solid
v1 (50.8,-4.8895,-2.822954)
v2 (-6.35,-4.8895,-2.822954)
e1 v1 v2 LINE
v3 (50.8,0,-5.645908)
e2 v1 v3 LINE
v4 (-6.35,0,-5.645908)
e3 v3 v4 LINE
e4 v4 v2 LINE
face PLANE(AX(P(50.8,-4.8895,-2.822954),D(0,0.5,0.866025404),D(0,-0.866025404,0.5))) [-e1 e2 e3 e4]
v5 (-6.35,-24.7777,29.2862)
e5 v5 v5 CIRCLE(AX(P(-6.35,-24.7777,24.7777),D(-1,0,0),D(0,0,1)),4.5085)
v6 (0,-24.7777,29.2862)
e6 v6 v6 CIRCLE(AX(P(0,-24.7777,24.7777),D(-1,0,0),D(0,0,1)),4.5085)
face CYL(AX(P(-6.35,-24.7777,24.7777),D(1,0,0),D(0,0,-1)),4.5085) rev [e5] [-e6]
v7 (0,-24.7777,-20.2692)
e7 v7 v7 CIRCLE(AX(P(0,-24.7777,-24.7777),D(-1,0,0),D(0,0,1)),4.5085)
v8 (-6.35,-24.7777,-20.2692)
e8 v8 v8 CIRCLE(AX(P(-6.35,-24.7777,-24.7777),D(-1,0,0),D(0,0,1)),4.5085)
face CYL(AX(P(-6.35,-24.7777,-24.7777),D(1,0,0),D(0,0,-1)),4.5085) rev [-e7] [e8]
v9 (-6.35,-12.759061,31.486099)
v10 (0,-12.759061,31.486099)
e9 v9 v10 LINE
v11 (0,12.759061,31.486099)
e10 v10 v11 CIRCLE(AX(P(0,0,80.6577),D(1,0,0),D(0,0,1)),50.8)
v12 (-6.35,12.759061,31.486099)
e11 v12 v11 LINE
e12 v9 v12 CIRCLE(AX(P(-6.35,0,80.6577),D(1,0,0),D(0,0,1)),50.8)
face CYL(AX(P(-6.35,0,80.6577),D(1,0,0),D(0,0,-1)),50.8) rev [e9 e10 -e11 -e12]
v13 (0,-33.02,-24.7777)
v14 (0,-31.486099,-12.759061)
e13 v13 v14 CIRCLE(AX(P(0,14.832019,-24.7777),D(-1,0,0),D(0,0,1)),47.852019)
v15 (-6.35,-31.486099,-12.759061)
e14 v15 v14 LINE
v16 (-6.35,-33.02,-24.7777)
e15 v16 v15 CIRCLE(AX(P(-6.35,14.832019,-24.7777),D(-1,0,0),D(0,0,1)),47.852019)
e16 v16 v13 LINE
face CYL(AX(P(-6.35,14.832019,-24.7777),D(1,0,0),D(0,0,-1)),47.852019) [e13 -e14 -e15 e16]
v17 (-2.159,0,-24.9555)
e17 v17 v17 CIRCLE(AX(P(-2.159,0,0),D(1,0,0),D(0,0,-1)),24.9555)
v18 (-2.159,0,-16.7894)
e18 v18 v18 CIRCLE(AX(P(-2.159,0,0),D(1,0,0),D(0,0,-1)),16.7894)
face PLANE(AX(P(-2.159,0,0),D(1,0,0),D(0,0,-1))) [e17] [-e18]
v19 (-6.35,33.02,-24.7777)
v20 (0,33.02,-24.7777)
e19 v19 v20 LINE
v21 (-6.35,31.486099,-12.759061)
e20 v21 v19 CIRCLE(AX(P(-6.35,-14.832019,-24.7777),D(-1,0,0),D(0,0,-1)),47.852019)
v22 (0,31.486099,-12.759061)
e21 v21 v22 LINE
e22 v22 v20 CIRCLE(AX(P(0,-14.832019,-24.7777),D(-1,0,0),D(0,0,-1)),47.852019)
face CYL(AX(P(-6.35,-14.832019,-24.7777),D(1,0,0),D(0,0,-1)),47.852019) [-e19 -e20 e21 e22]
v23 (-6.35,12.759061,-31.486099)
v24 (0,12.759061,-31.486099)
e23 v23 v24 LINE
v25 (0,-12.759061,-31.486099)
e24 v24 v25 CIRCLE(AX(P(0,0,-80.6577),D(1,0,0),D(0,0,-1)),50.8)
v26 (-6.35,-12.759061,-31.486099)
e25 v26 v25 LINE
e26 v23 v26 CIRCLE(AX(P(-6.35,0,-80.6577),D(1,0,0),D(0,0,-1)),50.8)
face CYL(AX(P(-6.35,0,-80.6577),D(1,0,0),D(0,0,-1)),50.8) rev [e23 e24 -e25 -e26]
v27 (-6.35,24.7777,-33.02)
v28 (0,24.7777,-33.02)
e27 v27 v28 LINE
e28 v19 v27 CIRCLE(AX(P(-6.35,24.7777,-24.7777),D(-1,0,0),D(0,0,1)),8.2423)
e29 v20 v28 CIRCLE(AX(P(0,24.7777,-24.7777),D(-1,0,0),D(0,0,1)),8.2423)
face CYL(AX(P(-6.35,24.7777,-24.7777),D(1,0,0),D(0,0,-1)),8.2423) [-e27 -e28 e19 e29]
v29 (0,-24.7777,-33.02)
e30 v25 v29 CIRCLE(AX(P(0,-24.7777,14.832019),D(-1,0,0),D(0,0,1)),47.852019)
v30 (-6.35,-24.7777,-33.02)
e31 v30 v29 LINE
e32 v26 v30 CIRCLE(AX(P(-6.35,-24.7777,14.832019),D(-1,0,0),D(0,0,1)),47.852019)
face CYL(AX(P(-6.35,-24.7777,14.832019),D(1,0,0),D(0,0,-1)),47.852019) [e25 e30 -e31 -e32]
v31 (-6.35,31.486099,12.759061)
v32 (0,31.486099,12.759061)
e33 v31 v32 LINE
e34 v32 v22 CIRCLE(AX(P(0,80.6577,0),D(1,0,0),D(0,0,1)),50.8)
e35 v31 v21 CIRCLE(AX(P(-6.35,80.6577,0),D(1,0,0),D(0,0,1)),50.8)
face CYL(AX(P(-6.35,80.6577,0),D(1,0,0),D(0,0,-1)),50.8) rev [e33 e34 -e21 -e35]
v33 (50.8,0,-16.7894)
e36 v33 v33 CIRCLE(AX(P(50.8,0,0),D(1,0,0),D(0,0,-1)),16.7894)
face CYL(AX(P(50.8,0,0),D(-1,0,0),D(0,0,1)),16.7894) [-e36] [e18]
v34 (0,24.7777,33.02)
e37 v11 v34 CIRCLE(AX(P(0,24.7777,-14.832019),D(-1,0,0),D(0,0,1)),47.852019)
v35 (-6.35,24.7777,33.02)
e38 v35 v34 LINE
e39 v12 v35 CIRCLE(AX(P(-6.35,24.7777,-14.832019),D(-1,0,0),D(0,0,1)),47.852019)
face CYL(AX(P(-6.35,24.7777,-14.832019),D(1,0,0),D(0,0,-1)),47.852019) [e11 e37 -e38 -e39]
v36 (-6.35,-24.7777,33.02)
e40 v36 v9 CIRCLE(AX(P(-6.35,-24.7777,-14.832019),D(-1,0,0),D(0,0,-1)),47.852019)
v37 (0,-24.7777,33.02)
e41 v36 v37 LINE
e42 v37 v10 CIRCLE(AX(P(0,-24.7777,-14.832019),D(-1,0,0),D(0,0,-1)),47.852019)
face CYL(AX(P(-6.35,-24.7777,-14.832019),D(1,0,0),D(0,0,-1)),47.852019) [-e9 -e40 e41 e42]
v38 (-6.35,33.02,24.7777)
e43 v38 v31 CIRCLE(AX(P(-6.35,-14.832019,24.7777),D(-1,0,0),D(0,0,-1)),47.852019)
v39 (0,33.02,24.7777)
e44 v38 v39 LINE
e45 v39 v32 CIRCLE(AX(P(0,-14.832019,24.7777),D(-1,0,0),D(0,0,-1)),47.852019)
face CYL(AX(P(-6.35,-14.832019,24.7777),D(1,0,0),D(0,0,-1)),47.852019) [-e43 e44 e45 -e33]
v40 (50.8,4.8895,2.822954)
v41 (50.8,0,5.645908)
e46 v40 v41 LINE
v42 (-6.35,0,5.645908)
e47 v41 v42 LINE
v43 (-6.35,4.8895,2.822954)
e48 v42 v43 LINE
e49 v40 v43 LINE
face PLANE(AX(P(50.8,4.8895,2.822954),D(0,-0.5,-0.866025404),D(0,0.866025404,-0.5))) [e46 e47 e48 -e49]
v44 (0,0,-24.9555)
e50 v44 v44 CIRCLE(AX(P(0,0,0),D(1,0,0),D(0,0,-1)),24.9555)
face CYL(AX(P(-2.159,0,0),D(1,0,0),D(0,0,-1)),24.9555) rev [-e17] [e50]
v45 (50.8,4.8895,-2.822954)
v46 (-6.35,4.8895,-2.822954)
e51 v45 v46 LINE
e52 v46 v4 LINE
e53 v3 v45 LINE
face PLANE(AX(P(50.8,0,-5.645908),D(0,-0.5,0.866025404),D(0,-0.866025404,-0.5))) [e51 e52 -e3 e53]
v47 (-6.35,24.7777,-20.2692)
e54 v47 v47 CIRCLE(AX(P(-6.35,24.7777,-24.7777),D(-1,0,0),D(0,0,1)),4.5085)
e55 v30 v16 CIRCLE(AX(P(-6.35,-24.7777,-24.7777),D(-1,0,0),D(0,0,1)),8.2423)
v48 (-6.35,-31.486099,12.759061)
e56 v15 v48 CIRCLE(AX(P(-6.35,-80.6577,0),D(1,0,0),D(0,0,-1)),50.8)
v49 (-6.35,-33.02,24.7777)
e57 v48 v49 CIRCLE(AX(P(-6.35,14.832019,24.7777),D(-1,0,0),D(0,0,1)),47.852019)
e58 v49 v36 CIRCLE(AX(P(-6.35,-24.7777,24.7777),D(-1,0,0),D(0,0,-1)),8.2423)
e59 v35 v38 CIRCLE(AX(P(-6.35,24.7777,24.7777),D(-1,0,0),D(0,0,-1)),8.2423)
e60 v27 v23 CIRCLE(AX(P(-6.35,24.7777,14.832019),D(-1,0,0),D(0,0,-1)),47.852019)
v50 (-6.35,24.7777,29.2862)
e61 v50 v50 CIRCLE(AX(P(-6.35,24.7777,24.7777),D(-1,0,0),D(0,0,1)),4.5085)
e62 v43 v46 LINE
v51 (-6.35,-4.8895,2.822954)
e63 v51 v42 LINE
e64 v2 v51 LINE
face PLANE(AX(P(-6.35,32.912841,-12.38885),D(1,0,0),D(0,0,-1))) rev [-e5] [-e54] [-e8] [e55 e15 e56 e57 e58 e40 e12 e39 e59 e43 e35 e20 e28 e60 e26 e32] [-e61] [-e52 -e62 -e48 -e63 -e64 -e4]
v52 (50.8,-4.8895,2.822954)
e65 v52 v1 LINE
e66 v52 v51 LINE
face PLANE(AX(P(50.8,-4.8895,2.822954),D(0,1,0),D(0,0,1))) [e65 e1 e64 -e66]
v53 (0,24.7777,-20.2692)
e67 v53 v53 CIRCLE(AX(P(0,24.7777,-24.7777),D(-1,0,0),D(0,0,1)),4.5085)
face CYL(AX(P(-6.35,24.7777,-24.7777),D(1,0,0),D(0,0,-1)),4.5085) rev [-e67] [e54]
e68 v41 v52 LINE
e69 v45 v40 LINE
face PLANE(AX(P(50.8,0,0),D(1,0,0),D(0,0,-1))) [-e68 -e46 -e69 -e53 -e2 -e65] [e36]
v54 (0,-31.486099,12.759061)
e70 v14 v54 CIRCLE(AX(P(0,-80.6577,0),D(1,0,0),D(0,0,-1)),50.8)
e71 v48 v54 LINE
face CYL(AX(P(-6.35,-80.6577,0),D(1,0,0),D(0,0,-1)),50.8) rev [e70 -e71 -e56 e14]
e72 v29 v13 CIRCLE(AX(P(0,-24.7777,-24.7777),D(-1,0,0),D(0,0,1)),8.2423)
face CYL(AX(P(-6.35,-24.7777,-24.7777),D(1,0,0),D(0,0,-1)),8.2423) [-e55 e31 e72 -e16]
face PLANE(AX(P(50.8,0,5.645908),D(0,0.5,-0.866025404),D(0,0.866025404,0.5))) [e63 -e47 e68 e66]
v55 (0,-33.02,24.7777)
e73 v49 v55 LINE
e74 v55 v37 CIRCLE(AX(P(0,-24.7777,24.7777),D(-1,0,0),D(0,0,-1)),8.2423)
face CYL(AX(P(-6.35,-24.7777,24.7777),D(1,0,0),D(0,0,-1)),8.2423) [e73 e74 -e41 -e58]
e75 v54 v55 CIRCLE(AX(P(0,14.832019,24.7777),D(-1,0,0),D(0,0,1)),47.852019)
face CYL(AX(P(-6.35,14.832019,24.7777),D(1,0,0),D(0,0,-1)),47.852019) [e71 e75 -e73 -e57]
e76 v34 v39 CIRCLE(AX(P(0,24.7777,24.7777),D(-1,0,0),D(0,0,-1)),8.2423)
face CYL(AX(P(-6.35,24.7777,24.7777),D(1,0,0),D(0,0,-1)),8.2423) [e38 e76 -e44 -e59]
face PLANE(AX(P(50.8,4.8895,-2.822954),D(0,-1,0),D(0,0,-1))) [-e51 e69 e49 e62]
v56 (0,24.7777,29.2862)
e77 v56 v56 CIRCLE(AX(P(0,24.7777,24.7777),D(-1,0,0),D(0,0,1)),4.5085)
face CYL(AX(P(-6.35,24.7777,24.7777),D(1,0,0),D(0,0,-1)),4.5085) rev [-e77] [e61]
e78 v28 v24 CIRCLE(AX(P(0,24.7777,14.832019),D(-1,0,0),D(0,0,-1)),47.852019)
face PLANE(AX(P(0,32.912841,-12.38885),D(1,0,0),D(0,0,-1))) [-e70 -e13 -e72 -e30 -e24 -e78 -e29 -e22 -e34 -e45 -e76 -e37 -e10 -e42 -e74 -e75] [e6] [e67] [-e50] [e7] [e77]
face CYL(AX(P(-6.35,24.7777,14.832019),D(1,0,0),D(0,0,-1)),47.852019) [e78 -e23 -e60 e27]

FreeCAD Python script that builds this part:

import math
import FreeCAD as App
import Part
import Sketcher
Q = App.Units.Quantity


def add_polygon(sketch, points):
    """Adds a closed chain of lines whose ends are joined by coincident constraints."""
    first, n = sketch.GeometryCount, len(points)
    for a, b in zip(points, points[1:] + points[:1]):
        sketch.addGeometry(Part.LineSegment(App.Vector(*a, 0), App.Vector(*b, 0)), False)
    for i in range(n):
        sketch.addConstraint(Sketcher.Constraint("Coincident", first + i, 2, first + (i + 1) % n, 1))

doc = App.newDocument("Part")
params = doc.addObject("Spreadsheet::Sheet", "Params")
for row, (alias, value) in enumerate([
    ("sketch1_diameter", "1.322 in"),
    ("pad1_length", "2 in"),
    ("sketch2_radius", "2 in"),
    ("sketch2_diameter", "0.355 in"),
    ("pad2_length", "0.25 in"),
    ("sketch3_diameter", "1.965 in"),
    ("sketch3_diameter2", "1.322 in"),
    ("pocket1_length", "0.085 in"),
], start=1):
    params.set(f"A{row}", alias)
    params.set(f"B{row}", "=" + value)
    params.setAlias(f"B{row}", alias)

body = doc.addObject("PartDesign::Body", "Body")

# Sketch on YZ plane
sketch1 = body.newObject("Sketcher::SketchObject", "Sketch")
sketch1.AttachmentSupport = (doc.getObject("YZ_Plane"), [""])
sketch1.MapMode = "FlatFace"
sketch1.addGeometry(Part.Circle(App.Vector(0, 0, 0), App.Vector(0, 0, 1), 17), False)  # 0
add_polygon(sketch1, [(-5, -3), (-5, 3), (0, 6), (5, 3), (5, -3), (0, -6)])  # lines 1-6
sketch1.addConstraint([
    Sketcher.Constraint("Vertical", 1),
    Sketcher.Constraint("Vertical", 4),
    Sketcher.Constraint("Coincident", 0, 3, -1, 1),
    Sketcher.Constraint("Symmetric", 1, 2, 4, 2, -1, 1),
    Sketcher.Constraint("Symmetric", 2, 2, 5, 2, -1, 1),
    Sketcher.Constraint("PointOnObject", 2, 2, -2),
    Sketcher.Constraint("Parallel", 3, 6),
    Sketcher.Constraint("Horizontal", 1, 2, 3, 2),
    Sketcher.Constraint("Diameter", 0, Q("1.322 in")),
    Sketcher.Constraint("Angle", 2, Q("30 deg")),
    Sketcher.Constraint("DistanceX", 1, 2, 3, 2, Q("0.385 in")),
    Sketcher.Constraint("DistanceY", 1, 1, 1, 2, 5.645908),
])
sketch1.setExpression("Constraints[14]", "Params.sketch1_diameter")
pad1 = body.newObject("PartDesign::Pad", "Pad")
pad1.Profile = sketch1
pad1.setExpression("Length", "Params.pad1_length")

# Sketch on YZ plane
sketch2 = body.newObject("Sketcher::SketchObject", "Sketch001")
sketch2.AttachmentSupport = (doc.getObject("YZ_Plane"), [""])
sketch2.MapMode = "FlatFace"
sketch2.addGeometry(Part.ArcOfCircle(Part.Circle(App.Vector(24.8, -24.8, 0), App.Vector(0, 0, 1), 8.2), math.radians(-90), math.radians(0)), False)  # 0
sketch2.addGeometry(Part.ArcOfCircle(Part.Circle(App.Vector(24.8, 14.8, 0), App.Vector(0, 0, 1), 47.9), math.radians(-104.55), math.radians(-90)), False)  # 1
sketch2.addGeometry(Part.ArcOfCircle(Part.Circle(App.Vector(0, -80.7, 0), App.Vector(0, 0, 1), 50.8), math.radians(75), math.radians(105)), False)  # 2
sketch2.addGeometry(Part.ArcOfCircle(Part.Circle(App.Vector(-24.8, 14.8, 0), App.Vector(0, 0, 1), 47.9), math.radians(-90), math.radians(-75.45)), False)  # 3
sketch2.addGeometry(Part.ArcOfCircle(Part.Circle(App.Vector(-24.8, -24.8, 0), App.Vector(0, 0, 1), 8.2), math.radians(180), math.radians(270)), False)  # 4
sketch2.addGeometry(Part.ArcOfCircle(Part.Circle(App.Vector(14.8, -24.8, 0), App.Vector(0, 0, 1), 47.9), math.radians(165.45), math.radians(180)), False)  # 5
sketch2.addGeometry(Part.ArcOfCircle(Part.Circle(App.Vector(-80.7, 0, 0), App.Vector(0, 0, 1), 50.8), math.radians(-15), math.radians(15)), False)  # 6
sketch2.addGeometry(Part.ArcOfCircle(Part.Circle(App.Vector(14.8, 24.8, 0), App.Vector(0, 0, 1), 47.9), math.radians(-180), math.radians(-165.45)), False)  # 7
sketch2.addGeometry(Part.ArcOfCircle(Part.Circle(App.Vector(-24.8, 24.8, 0), App.Vector(0, 0, 1), 8.2), math.radians(90), math.radians(180)), False)  # 8
sketch2.addGeometry(Part.ArcOfCircle(Part.Circle(App.Vector(-24.8, -14.8, 0), App.Vector(0, 0, 1), 47.9), math.radians(75.45), math.radians(90)), False)  # 9
sketch2.addGeometry(Part.ArcOfCircle(Part.Circle(App.Vector(0, 80.7, 0), App.Vector(0, 0, 1), 50.8), math.radians(-105), math.radians(-75)), False)  # 10
sketch2.addGeometry(Part.ArcOfCircle(Part.Circle(App.Vector(24.8, -14.8, 0), App.Vector(0, 0, 1), 47.9), math.radians(90), math.radians(104.55)), False)  # 11
sketch2.addGeometry(Part.ArcOfCircle(Part.Circle(App.Vector(24.8, 24.8, 0), App.Vector(0, 0, 1), 8.2), math.radians(0), math.radians(90)), False)  # 12
sketch2.addGeometry(Part.ArcOfCircle(Part.Circle(App.Vector(-14.8, 24.8, 0), App.Vector(0, 0, 1), 47.9), math.radians(-14.55), math.radians(0)), False)  # 13
sketch2.addGeometry(Part.ArcOfCircle(Part.Circle(App.Vector(80.7, 0, 0), App.Vector(0, 0, 1), 50.8), math.radians(165), math.radians(195)), False)  # 14
sketch2.addGeometry(Part.ArcOfCircle(Part.Circle(App.Vector(-14.8, -24.8, 0), App.Vector(0, 0, 1), 47.9), math.radians(0), math.radians(14.55)), False)  # 15
sketch2.addGeometry(Part.Circle(App.Vector(-24.8, -24.8, 0), App.Vector(0, 0, 1), 4.5), False)  # 16
sketch2.addGeometry(Part.Circle(App.Vector(-24.8, 24.8, 0), App.Vector(0, 0, 1), 4.5), False)  # 17
sketch2.addGeometry(Part.Circle(App.Vector(24.8, -24.8, 0), App.Vector(0, 0, 1), 4.5), False)  # 18
add_polygon(sketch2, [(4.9, -2.8), (4.9, 2.8), (0, 5.6), (-4.9, 2.8), (-4.9, -2.8), (0, -5.6)])  # lines 19-24
sketch2.addGeometry(Part.Circle(App.Vector(24.8, 24.8, 0), App.Vector(0, 0, 1), 4.5), False)  # 25
sketch2.addConstraint([
    Sketcher.Constraint("Tangent", 0, 1, 1, 2),
    Sketcher.Constraint("Tangent", 1, 1, 2, 1),
    Sketcher.Constraint("Tangent", 2, 2, 3, 2),
    Sketcher.Constraint("Tangent", 3, 1, 4, 2),
    Sketcher.Constraint("Tangent", 4, 1, 5, 2),
    Sketcher.Constraint("Tangent", 5, 1, 6, 1),
    Sketcher.Constraint("Tangent", 6, 2, 7, 2),
    Sketcher.Constraint("Tangent", 7, 1, 8, 2),
    Sketcher.Constraint("Tangent", 8, 1, 9, 2),
    Sketcher.Constraint("Tangent", 9, 1, 10, 1),
    Sketcher.Constraint("Tangent", 10, 2, 11, 2),
    Sketcher.Constraint("Tangent", 11, 1, 12, 2),
    Sketcher.Constraint("Tangent", 12, 1, 13, 2),
    Sketcher.Constraint("Tangent", 13, 1, 14, 1),
    Sketcher.Constraint("Tangent", 14, 2, 15, 2),
    Sketcher.Constraint("Tangent", 15, 1, 0, 2),
    Sketcher.Constraint("Vertical", 19),
    Sketcher.Constraint("Vertical", 22),
    Sketcher.Constraint("Coincident", 16, 3, 4, 3),
    Sketcher.Constraint("Coincident", 17, 3, 8, 3),
    Sketcher.Constraint("Coincident", 18, 3, 0, 3),
    Sketcher.Constraint("Coincident", 25, 3, 12, 3),
    Sketcher.Constraint("Equal", 1, 3),
    Sketcher.Constraint("Equal", 0, 4),
    Sketcher.Constraint("Equal", 3, 5),
    Sketcher.Constraint("Equal", 2, 6),
    Sketcher.Constraint("Equal", 5, 7),
    Sketcher.Constraint("Equal", 4, 8),
    Sketcher.Constraint("Equal", 7, 9),
    Sketcher.Constraint("Equal", 6, 10),
    Sketcher.Constraint("Equal", 9, 11),
    Sketcher.Constraint("Equal", 8, 12),
    Sketcher.Constraint("Equal", 11, 13),
    Sketcher.Constraint("Equal", 10, 14),
    Sketcher.Constraint("Equal", 13, 15),
    Sketcher.Constraint("Equal", 16, 17),
    Sketcher.Constraint("Equal", 17, 18),
    Sketcher.Constraint("Equal", 18, 25),
    Sketcher.Constraint("Symmetric", 0, 3, 8, 3, -1, 1),
    Sketcher.Constraint("Symmetric", 2, 3, 10, 3, -1, 1),
    Sketcher.Constraint("Symmetric", 4, 3, 12, 3, -1, 1),
    Sketcher.Constraint("Symmetric", 6, 3, 14, 3, -1, 1),
    Sketcher.Constraint("Symmetric", 19, 2, 22, 2, -1, 1),
    Sketcher.Constraint("Symmetric", 20, 2, 23, 2, -1, 1),
    Sketcher.Constraint("Symmetric", 1, 3, 3, 3, -2),
    Sketcher.Constraint("Symmetric", 7, 3, 13, 3, -2),
    Sketcher.Constraint("PointOnObject", 20, 2, -2),
    Sketcher.Constraint("Parallel", 21, 24),
    Sketcher.Constraint("Horizontal", 4, 3, 5, 3),
    Sketcher.Constraint("Horizontal", 19, 2, 21, 2),
    Sketcher.Constraint("Vertical", 0, 3, 1, 3),
    Sketcher.Constraint("Radius", 2, Q("2 in")),
    Sketcher.Constraint("Diameter", 16, Q("0.355 in")),
    Sketcher.Constraint("Angle", 20, Q("150 deg")),
    Sketcher.Constraint("DistanceY", 0, 1, -1, 1, Q("1.3 in")),
    Sketcher.Constraint("DistanceX", 4, 1, -1, 1, Q("1.3 in")),
    Sketcher.Constraint("Radius", 0, Q("0.3245 in")),
    Sketcher.Constraint("DistanceY", 2, 3, 0, 3, Q("2.2 in")),
    Sketcher.Constraint("DistanceX", 19, 2, 1, 3, Q("0.783 in")),
    Sketcher.Constraint("DistanceY", 19, 1, 19, 2, 5.645908),
])
sketch2.setExpression("Constraints[57]", "Params.sketch2_radius")
sketch2.setExpression("Constraints[58]", "Params.sketch2_diameter")
pad2 = body.newObject("PartDesign::Pad", "Pad001")
pad2.Profile = sketch2
pad2.setExpression("Length", "Params.pad2_length")
pad2.Reversed = True

# Sketch on YZ plane
sketch3 = body.newObject("Sketcher::SketchObject", "Sketch002")
sketch3.AttachmentSupport = (doc.getObject("YZ_Plane"), [""])
sketch3.MapMode = "FlatFace"
sketch3.AttachmentOffset = App.Placement(App.Vector(0, 0, -0.085 * 25.4), App.Rotation())
sketch3.addGeometry([
    Part.Circle(App.Vector(0, 0, 0), App.Vector(0, 0, 1), 25),
    Part.Circle(App.Vector(0, 0, 0), App.Vector(0, 0, 1), 17),
], False)
sketch3.addConstraint([
    Sketcher.Constraint("Coincident", 0, 3, -1, 1),
    Sketcher.Constraint("Coincident", 1, 3, -1, 1),
    Sketcher.Constraint("Diameter", 0, Q("1.965 in")),
    Sketcher.Constraint("Diameter", 1, Q("1.322 in")),
])
sketch3.setExpression("Constraints[2]", "Params.sketch3_diameter")
sketch3.setExpression("Constraints[3]", "Params.sketch3_diameter2")
pocket1 = body.newObject("PartDesign::Pocket", "Pocket")
pocket1.Profile = sketch3
pocket1.setExpression("Length", "Params.pocket1_length")
pocket1.Reversed = True

doc.recompute()
